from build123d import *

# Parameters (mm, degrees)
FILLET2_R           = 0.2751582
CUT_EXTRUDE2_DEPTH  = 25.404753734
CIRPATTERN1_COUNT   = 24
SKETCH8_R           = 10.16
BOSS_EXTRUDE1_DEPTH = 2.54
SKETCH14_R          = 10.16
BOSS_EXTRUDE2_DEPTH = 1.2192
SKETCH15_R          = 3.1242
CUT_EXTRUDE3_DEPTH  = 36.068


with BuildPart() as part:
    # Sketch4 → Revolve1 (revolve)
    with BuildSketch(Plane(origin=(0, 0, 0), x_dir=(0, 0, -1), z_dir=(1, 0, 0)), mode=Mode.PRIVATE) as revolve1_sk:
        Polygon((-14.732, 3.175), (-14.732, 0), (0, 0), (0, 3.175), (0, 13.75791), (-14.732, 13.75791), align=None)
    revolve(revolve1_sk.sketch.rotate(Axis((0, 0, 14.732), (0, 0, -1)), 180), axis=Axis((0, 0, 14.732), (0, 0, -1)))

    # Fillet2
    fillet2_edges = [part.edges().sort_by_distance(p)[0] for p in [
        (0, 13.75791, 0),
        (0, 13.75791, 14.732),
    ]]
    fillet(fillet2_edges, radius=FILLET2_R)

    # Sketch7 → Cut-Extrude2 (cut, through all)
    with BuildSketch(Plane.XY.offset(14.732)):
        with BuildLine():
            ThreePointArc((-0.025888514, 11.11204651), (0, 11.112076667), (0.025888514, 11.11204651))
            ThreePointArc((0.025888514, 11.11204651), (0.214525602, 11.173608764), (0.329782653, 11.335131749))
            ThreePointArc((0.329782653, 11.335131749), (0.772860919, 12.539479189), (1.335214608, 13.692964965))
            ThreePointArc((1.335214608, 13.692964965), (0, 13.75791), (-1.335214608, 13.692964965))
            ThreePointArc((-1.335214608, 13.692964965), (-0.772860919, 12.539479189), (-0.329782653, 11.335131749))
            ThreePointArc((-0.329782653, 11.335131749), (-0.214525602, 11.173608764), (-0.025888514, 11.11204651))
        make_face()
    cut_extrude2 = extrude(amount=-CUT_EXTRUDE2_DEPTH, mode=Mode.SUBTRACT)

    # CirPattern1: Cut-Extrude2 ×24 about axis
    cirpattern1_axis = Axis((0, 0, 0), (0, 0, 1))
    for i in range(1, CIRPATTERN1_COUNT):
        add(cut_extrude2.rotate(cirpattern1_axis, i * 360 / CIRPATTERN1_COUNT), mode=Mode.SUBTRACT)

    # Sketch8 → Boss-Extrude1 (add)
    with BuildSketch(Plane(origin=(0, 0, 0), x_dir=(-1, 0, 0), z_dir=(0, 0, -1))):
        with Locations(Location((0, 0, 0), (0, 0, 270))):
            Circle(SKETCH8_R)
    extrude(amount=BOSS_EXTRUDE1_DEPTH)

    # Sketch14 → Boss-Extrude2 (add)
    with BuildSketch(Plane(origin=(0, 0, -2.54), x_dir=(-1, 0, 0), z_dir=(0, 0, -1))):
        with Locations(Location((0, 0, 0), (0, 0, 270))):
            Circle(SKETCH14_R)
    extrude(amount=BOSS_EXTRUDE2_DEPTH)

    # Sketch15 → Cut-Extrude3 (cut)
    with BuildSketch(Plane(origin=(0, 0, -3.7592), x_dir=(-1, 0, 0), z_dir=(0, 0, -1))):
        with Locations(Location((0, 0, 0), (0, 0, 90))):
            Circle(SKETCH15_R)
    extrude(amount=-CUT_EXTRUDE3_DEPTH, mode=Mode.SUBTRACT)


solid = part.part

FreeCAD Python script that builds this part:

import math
import FreeCAD as App
import Part
import Sketcher

V = App.Vector
Q = App.Units.Quantity


def edges_at(feature, points):
    """Names of the edges that pass closest to the given points."""
    edges = feature.Shape.Edges
    near = lambda p: min(range(len(edges)), key=lambda i: edges[i].distToShape(Part.Vertex(*p))[0])
    return sorted({f"Edge{near(p) + 1}" for p in points})


def add_polygon(sketch, points):
    """Adds a closed chain of lines whose ends are joined by coincident constraints."""
    first, n = sketch.GeometryCount, len(points)
    for a, b in zip(points, points[1:] + points[:1]):
        sketch.addGeometry(Part.LineSegment(App.Vector(*a, 0), App.Vector(*b, 0)), False)
    for i in range(n):
        sketch.addConstraint(Sketcher.Constraint("Coincident", first + i, 2, first + (i + 1) % n, 1))

doc = App.newDocument("Part")
body = doc.addObject("PartDesign::Body", "Body")

sketch1 = body.newObject("Sketcher::SketchObject", "Sketch")
sketch1.AttachmentSupport = (doc.getObject("YZ_Plane"), [""])
sketch1.MapMode = "FlatFace"
add_polygon(sketch1, [(0, 15), (0, 0), (14, 0), (14, 15)])
sketch1.addConstraint([
    Sketcher.Constraint("Vertical", 0),
    Sketcher.Constraint("Horizontal", 1),
    Sketcher.Constraint("Vertical", 2),
    Sketcher.Constraint("Horizontal", 3),
    Sketcher.Constraint("Coincident", 0, 2, -1, 1),
    Sketcher.Constraint("DistanceY", 0, 2, 0, 1, Q("0.58 in")),
    Sketcher.Constraint("DistanceX", 1, 1, 1, 2, Q("13.75791 mm")),
])
revolution = body.newObject("PartDesign::Revolution", "Revolution")
revolution.Profile = sketch1
revolution.ReferenceAxis = (sketch1, ["V_Axis"])
revolution.Angle = 360
doc.recompute()

fillet = body.newObject("PartDesign::Fillet", "Fillet")
fillet.Base = (revolution, edges_at(revolution, [(0, 13.758, 0), (0, 13.758, 14.732)]))
fillet.Radius = 0.275158

sketch2 = body.newObject("Sketcher::SketchObject", "Sketch001")
sketch2.AttachmentSupport = (doc.getObject("XY_Plane"), [""])
sketch2.MapMode = "FlatFace"
sketch2.AttachmentOffset = App.Placement(V(0, 0, 0.58 * 25.4), App.Rotation())
sketch2.addGeometry([
    Part.ArcOfCircle(Part.Circle(V(0, 0, 0), V(0, 0, 1), 11.11), math.radians(89.87), math.radians(90.13)),
    Part.ArcOfCircle(Part.Circle(V(0.03, 11.43, 0), V(0, 0, 1), 0.32), math.radians(-90), math.radians(-17)),
    Part.ArcOfCircle(Part.Circle(V(12.46, 7.56, 0), V(0, 0, 1), 12.7), math.radians(151.11), math.radians(162.7)),
    Part.ArcOfCircle(Part.Circle(V(0, 0, 0), V(0, 0, 1), 13.76), math.radians(84.43), math.radians(95.57)),
    Part.ArcOfCircle(Part.Circle(V(-12.46, 7.56, 0), V(0, 0, 1), 12.7), math.radians(17.3), math.radians(28.89)),
    Part.ArcOfCircle(Part.Circle(V(-0.03, 11.43, 0), V(0, 0, 1), 0.32), math.radians(-163), math.radians(-90)),
], False)
sketch2.addConstraint([
    Sketcher.Constraint("Tangent", 0, 1, 1, 1),
    Sketcher.Constraint("Tangent", 1, 2, 2, 2),
    Sketcher.Constraint("Coincident", 2, 1, 3, 1),
    Sketcher.Constraint("Coincident", 3, 2, 4, 2),
    Sketcher.Constraint("Tangent", 4, 1, 5, 1),
    Sketcher.Constraint("Tangent", 5, 2, 0, 2),
    Sketcher.Constraint("Coincident", 3, 3, -1, 1),
    Sketcher.Constraint("Equal", 2, 4),
    Sketcher.Constraint("Equal", 1, 5),
    Sketcher.Constraint("Symmetric", 2, 3, 4, 3, -2),
    Sketcher.Constraint("PointOnObject", 0, 3, -2),
    Sketcher.Constraint("Radius", 2, Q("0.5 in")),
    Sketcher.Constraint("Radius", 3, Q("13.75791 mm")),
    Sketcher.Constraint("Radius", 0, Q("11.112114 mm")),
    Sketcher.Constraint("Radius", 1, Q("0.317523 mm")),
    Sketcher.Constraint("DistanceX", -1, 1, 1, 3, Q("0.026628 mm")),
    Sketcher.Constraint("DistanceY", -1, 1, 1, 3, Q("11.429569 mm")),
    Sketcher.Constraint("DistanceY", -1, 1, 1, 2, Q("11.335132 mm")),
])
pocket1 = body.newObject("PartDesign::Pocket", "Pocket")
pocket1.Profile = sketch2
pocket1.Type = "ThroughAll"
doc.recompute()

polarpattern = body.newObject("PartDesign::PolarPattern", "PolarPattern")
polarpattern.Originals = [pocket1]
polarpattern.Axis = (doc.getObject("Z_Axis"), [""])
polarpattern.Angle = 360
polarpattern.Occurrences = 24
body.Tip = polarpattern

sketch3 = body.newObject("Sketcher::SketchObject", "Sketch002")
sketch3.AttachmentSupport = (doc.getObject("XY_Plane"), [""])
sketch3.MapMode = "FlatFace"
sketch3.addGeometry(Part.Circle(V(0, 0, 0), V(0, 0, 1), 10), False)
sketch3.addConstraint([
    Sketcher.Constraint("Coincident", 0, 3, -1, 1),
    Sketcher.Constraint("Diameter", 0, Q("0.8 in")),
])
pad1 = body.newObject("PartDesign::Pad", "Pad")
pad1.Profile = sketch3
pad1.Length = Q("0.1 in")
pad1.Reversed = True

sketch4 = body.newObject("Sketcher::SketchObject", "Sketch003")
sketch4.AttachmentSupport = (doc.getObject("XY_Plane"), [""])
sketch4.MapMode = "FlatFace"
sketch4.AttachmentOffset = App.Placement(V(0, 0, -0.1 * 25.4), App.Rotation())
sketch4.addGeometry(Part.Circle(V(0, 0, 0), V(0, 0, 1), 10), False)
sketch4.addConstraint([
    Sketcher.Constraint("Coincident", 0, 3, -1, 1),
    Sketcher.Constraint("Diameter", 0, Q("0.8 in")),
])
pad2 = body.newObject("PartDesign::Pad", "Pad001")
pad2.Profile = sketch4
pad2.Length = Q("0.048 in")
pad2.Reversed = True

sketch5 = body.newObject("Sketcher::SketchObject", "Sketch004")
sketch5.AttachmentSupport = (doc.getObject("XY_Plane"), [""])
sketch5.MapMode = "FlatFace"
sketch5.AttachmentOffset = App.Placement(V(0, 0, -0.148 * 25.4), App.Rotation())
sketch5.addGeometry(Part.Circle(V(0, 0, 0), V(0, 0, 1), 3.1), False)
sketch5.addConstraint([
    Sketcher.Constraint("Coincident", 0, 3, -1, 1),
    Sketcher.Constraint("Diameter", 0, Q("0.246 in")),
])
pocket2 = body.newObject("PartDesign::Pocket", "Pocket001")
pocket2.Profile = sketch5
pocket2.Length = Q("1.42 in")
pocket2.Reversed = True

doc.recompute()
